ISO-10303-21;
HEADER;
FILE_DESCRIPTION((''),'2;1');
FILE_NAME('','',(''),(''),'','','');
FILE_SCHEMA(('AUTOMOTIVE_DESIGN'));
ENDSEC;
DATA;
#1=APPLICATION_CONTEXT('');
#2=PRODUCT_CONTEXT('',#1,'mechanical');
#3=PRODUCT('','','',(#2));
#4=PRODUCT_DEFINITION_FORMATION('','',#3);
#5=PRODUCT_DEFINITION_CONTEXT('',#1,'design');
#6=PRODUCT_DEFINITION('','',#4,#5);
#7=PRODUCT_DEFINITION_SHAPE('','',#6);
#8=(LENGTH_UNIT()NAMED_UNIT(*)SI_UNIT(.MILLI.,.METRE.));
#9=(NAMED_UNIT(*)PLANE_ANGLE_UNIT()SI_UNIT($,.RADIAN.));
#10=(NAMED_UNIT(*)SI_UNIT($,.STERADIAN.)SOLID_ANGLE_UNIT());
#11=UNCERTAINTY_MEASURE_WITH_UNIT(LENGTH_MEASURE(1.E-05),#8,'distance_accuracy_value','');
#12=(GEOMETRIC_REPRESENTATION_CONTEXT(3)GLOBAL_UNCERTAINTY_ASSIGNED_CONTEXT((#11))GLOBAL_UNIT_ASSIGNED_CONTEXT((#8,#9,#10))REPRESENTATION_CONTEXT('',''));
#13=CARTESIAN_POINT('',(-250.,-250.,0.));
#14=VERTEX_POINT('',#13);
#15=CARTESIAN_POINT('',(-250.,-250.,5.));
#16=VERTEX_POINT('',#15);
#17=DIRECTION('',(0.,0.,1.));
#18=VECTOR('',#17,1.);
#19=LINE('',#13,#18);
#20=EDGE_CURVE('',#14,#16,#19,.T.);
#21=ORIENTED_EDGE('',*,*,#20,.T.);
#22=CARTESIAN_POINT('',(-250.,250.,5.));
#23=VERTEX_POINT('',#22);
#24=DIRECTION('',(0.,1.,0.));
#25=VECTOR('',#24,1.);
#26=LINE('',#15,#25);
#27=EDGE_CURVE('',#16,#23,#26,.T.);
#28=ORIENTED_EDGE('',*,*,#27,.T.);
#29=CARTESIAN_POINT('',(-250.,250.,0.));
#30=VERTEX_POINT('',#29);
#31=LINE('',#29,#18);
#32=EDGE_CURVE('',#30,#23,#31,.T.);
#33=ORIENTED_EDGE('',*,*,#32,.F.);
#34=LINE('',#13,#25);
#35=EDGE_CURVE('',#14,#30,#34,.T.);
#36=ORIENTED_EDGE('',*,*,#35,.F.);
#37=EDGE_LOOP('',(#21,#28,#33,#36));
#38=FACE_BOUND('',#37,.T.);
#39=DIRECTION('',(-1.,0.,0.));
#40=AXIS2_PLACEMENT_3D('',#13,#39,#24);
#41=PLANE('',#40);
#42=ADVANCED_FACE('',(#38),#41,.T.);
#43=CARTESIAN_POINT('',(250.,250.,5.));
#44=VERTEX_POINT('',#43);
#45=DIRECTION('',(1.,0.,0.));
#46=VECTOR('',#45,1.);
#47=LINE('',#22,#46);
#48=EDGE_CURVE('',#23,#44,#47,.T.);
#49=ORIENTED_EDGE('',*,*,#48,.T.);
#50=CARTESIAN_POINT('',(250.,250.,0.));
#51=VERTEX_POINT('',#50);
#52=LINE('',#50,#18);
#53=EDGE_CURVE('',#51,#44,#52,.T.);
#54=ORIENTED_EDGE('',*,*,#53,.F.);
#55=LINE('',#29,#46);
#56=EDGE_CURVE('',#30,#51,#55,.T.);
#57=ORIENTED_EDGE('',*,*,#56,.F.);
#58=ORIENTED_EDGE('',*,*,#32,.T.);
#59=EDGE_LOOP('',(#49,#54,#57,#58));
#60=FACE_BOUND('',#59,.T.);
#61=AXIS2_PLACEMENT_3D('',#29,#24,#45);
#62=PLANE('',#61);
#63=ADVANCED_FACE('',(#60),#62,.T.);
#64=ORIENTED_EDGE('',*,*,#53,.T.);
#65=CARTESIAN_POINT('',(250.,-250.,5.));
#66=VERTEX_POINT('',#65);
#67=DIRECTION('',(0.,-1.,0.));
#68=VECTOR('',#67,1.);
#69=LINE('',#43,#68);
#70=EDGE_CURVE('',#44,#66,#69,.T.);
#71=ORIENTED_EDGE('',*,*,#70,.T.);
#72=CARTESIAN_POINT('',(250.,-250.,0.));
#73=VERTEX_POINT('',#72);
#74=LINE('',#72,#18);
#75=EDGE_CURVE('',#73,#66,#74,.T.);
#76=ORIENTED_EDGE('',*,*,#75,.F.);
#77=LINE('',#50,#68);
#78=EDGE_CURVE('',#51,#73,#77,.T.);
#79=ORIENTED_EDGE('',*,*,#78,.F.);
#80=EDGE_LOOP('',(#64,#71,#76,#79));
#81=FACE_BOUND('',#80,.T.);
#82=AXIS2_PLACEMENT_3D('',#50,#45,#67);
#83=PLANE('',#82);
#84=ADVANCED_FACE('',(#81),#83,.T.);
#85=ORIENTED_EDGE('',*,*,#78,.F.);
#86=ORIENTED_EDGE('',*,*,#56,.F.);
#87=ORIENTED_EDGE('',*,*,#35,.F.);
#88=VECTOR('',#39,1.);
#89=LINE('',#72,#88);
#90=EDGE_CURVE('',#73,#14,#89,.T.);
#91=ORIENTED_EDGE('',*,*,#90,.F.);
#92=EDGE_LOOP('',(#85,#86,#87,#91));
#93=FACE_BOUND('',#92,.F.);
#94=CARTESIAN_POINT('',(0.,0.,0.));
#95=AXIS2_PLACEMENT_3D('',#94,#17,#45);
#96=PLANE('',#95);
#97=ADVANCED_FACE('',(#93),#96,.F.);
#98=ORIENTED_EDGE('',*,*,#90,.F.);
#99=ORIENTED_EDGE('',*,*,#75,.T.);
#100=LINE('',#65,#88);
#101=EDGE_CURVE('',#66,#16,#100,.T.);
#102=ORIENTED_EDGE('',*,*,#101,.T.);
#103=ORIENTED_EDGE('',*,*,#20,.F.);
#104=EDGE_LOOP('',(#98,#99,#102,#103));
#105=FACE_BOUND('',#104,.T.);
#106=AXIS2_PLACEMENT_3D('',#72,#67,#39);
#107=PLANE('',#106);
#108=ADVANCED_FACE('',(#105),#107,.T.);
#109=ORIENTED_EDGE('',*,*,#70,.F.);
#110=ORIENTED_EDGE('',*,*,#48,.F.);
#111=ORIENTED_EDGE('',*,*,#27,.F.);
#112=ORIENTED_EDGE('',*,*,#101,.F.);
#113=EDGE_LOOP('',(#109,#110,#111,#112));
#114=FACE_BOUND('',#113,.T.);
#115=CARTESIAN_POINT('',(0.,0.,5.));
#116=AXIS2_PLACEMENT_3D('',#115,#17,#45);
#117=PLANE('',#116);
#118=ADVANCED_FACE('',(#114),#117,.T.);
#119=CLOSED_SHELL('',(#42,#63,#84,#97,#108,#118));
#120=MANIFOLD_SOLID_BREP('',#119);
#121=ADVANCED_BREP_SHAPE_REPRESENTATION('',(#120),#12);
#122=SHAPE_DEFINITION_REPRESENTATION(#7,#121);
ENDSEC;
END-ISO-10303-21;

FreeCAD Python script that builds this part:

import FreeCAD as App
import Part
import Sketcher

V = App.Vector

doc = App.newDocument("Part")
body = doc.addObject("PartDesign::Body", "Body")

sketch1 = doc.addObject("Sketcher::SketchObject", "Sketch")
body.addObject(sketch1)
sketch1.AttachmentSupport = (doc.XY_Plane, [""])
sketch1.MapMode = "FlatFace"
sketch1.addGeometry(Part.LineSegment(V(250, 250, 0), V(-250, 250, 0)), False)
sketch1.addGeometry(Part.LineSegment(V(-250, 250, 0), V(-250, -250, 0)), False)
sketch1.addGeometry(Part.LineSegment(V(-250, -250, 0), V(250, -250, 0)), False)
sketch1.addGeometry(Part.LineSegment(V(250, -250, 0), V(250, 250, 0)), False)
sketch1.addConstraint(Sketcher.Constraint("Coincident", 0, 2, 1, 1))
sketch1.addConstraint(Sketcher.Constraint("Coincident", 1, 2, 2, 1))
sketch1.addConstraint(Sketcher.Constraint("Coincident", 2, 2, 3, 1))
sketch1.addConstraint(Sketcher.Constraint("Coincident", 3, 2, 0, 1))
sketch1.addConstraint(Sketcher.Constraint("Horizontal", 0))
sketch1.addConstraint(Sketcher.Constraint("Vertical", 1))
sketch1.addConstraint(Sketcher.Constraint("Horizontal", 2))
sketch1.addConstraint(Sketcher.Constraint("Vertical", 3))
sketch1.addConstraint(Sketcher.Constraint("Symmetric", 0, 2, 2, 2, -1, 1))
sketch1.addConstraint(Sketcher.Constraint("Equal", 2, 1))
sketch1.addConstraint(Sketcher.Constraint("DistanceX", 0, 2, 0, 1, 500.0))
pad1 = doc.addObject("PartDesign::Pad", "Pad")
body.addObject(pad1)
pad1.Profile = sketch1
pad1.Length = 5

doc.recompute()
